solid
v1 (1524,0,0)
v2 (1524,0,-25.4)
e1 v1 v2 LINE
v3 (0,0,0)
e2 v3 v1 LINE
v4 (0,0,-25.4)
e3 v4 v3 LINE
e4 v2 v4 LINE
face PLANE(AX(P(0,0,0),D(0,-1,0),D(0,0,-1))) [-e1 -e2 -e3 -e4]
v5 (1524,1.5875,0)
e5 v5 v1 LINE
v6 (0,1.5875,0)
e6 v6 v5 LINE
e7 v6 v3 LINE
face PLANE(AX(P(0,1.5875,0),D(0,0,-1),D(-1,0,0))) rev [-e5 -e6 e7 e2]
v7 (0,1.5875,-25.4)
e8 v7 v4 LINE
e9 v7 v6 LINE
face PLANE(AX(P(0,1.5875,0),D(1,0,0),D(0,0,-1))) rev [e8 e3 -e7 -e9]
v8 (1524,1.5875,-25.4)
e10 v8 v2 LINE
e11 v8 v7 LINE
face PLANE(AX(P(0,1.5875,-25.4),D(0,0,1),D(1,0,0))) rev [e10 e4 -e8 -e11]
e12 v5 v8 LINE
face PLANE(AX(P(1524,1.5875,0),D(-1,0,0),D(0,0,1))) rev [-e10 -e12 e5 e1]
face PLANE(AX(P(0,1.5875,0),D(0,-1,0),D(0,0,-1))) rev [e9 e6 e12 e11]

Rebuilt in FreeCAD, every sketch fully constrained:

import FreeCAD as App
import Part
import Sketcher
Q = App.Units.Quantity

doc = App.newDocument("Part")
params = doc.addObject("Spreadsheet::Sheet", "Params")
for row, (alias, value) in enumerate([
    ("sketch1_width", "60 in"),
    ("sketch1_height", "1 in"),
    ("pad1_length", "0.0625 in"),
], start=1):
    params.set(f"A{row}", alias)
    params.set(f"B{row}", "=" + value)
    params.setAlias(f"B{row}", alias)

body = doc.addObject("PartDesign::Body", "Body")

# Sketch on XZ plane
sketch1 = body.newObject("Sketcher::SketchObject", "Sketch")
sketch1.AttachmentSupport = (doc.getObject("XZ_Plane"), [""])
sketch1.MapMode = "FlatFace"
sketch1.addGeometry([
    Part.LineSegment(App.Vector(0, -25, 0), App.Vector(0, 0, 0)),
    Part.LineSegment(App.Vector(0, 0, 0), App.Vector(1524, 0, 0)),
    Part.LineSegment(App.Vector(1524, 0, 0), App.Vector(1524, -25, 0)),
    Part.LineSegment(App.Vector(1524, -25, 0), App.Vector(0, -25, 0)),
], False)
sketch1.addConstraint([
    Sketcher.Constraint("Coincident", 0, 2, 1, 1),
    Sketcher.Constraint("Coincident", 1, 2, 2, 1),
    Sketcher.Constraint("Coincident", 2, 2, 3, 1),
    Sketcher.Constraint("Coincident", 3, 2, 0, 1),
    Sketcher.Constraint("Vertical", 0),
    Sketcher.Constraint("Horizontal", 1),
    Sketcher.Constraint("Vertical", 2),
    Sketcher.Constraint("Horizontal", 3),
    Sketcher.Constraint("Coincident", 0, 2, -1, 1),
    Sketcher.Constraint("DistanceX", 1, 1, 1, 2, Q("60 in")),
    Sketcher.Constraint("DistanceY", 0, 1, 0, 2, Q("1 in")),
])
sketch1.setExpression("Constraints[9]", "Params.sketch1_width")
sketch1.setExpression("Constraints[10]", "Params.sketch1_height")
pad1 = body.newObject("PartDesign::Pad", "Pad")
pad1.Profile = sketch1
pad1.setExpression("Length", "Params.pad1_length")
pad1.Reversed = True

doc.recompute()
